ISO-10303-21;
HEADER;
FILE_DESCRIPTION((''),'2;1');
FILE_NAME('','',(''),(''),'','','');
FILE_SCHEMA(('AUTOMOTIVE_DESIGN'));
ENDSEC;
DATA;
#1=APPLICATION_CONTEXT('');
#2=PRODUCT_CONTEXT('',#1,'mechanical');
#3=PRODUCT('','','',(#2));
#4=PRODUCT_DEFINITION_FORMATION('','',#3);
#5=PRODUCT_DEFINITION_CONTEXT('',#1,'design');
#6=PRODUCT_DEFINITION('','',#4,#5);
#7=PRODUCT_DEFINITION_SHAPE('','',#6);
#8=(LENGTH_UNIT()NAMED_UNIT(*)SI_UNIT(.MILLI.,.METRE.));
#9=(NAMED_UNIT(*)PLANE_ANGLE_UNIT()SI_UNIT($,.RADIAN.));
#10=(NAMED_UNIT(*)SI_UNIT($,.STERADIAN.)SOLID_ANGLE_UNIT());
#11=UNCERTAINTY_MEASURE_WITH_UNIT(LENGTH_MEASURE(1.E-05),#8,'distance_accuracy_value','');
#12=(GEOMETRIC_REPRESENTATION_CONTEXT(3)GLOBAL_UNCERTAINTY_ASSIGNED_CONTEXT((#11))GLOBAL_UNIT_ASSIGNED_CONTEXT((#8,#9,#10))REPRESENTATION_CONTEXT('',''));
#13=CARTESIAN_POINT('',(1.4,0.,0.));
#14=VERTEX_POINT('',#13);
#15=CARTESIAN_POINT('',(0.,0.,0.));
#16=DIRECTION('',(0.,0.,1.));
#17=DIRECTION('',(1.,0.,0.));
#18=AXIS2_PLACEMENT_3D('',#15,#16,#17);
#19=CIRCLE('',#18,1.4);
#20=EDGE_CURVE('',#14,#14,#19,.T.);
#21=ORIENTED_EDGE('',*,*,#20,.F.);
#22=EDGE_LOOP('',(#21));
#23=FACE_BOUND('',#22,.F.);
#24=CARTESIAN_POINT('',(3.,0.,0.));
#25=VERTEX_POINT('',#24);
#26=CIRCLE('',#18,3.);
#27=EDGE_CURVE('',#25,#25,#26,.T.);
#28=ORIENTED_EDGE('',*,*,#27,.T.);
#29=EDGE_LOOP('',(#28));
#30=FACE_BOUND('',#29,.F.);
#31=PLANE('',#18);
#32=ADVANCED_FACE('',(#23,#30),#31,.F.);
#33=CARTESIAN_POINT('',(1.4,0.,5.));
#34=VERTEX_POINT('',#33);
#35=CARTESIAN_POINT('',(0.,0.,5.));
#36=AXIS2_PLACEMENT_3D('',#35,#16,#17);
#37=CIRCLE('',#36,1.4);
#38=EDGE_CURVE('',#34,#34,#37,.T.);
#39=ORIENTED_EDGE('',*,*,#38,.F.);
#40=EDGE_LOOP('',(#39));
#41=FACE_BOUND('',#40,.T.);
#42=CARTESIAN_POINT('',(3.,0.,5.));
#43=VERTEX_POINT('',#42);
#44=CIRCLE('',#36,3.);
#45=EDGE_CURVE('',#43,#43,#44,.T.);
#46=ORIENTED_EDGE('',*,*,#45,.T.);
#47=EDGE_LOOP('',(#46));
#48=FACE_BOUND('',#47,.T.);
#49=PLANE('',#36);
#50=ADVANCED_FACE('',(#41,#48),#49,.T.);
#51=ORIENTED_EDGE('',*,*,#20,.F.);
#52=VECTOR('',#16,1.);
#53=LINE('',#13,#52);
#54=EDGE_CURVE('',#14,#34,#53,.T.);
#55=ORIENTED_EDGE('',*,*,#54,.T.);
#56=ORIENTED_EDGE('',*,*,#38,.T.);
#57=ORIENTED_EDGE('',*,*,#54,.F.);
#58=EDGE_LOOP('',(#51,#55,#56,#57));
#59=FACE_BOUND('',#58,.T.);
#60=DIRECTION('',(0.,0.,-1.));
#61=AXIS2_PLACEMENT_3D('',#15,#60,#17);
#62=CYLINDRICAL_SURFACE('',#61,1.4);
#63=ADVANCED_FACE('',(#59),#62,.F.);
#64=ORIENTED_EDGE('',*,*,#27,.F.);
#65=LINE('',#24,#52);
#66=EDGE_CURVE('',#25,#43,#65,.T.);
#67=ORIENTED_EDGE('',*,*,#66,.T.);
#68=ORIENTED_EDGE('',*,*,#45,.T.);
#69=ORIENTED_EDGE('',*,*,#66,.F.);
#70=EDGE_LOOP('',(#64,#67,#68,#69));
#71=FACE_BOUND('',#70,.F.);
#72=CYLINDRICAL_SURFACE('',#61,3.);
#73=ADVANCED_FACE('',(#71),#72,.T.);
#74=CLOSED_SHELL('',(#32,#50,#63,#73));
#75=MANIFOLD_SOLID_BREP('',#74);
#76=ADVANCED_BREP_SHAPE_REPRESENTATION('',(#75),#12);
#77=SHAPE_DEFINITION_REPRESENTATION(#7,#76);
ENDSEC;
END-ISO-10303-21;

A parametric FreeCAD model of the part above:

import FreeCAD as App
import Part
import Sketcher

V = App.Vector

doc = App.newDocument("Part")
params = doc.addObject("Spreadsheet::Sheet", "Params")
for row, (alias, value) in enumerate([
    ("sketch1_diameter", "6 mm"),
    ("sketch1_diameter2", "2.8 mm"),
    ("pad1_length", "5 mm"),
], start=1):
    params.set(f"A{row}", alias)
    params.set(f"B{row}", "=" + value)
    params.setAlias(f"B{row}", alias)

body = doc.addObject("PartDesign::Body", "Body")

# Sketch on XY plane
sketch1 = body.newObject("Sketcher::SketchObject", "Sketch")
sketch1.AttachmentSupport = (doc.getObject("XY_Plane"), [""])
sketch1.MapMode = "FlatFace"
sketch1.addGeometry([
    Part.Circle(V(0, 0, 0), V(0, 0, 1), 3),
    Part.Circle(V(0, 0, 0), V(0, 0, 1), 1.4),
], False)
sketch1.addConstraint([
    Sketcher.Constraint("Coincident", 0, 3, -1, 1),
    Sketcher.Constraint("Coincident", 1, 3, -1, 1),
    Sketcher.Constraint("Diameter", 0, 6.0),
    Sketcher.Constraint("Diameter", 1, 2.8),
])
sketch1.setExpression("Constraints[2]", "Params.sketch1_diameter")
sketch1.setExpression("Constraints[3]", "Params.sketch1_diameter2")
pad1 = body.newObject("PartDesign::Pad", "Pad")
pad1.Profile = sketch1
pad1.setExpression("Length", "Params.pad1_length")

doc.recompute()
